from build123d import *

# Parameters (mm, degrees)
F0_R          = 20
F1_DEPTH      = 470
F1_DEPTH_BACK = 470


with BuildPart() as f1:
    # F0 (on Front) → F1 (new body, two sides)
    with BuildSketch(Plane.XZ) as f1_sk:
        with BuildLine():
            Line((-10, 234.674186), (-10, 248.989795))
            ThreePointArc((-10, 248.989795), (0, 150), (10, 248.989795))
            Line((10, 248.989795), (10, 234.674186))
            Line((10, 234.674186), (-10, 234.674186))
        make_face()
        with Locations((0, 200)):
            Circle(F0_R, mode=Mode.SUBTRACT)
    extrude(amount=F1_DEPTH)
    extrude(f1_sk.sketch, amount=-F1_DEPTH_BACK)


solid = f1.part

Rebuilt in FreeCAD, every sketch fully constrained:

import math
import FreeCAD as App
import Part
import Sketcher

V = App.Vector
Q = App.Units.Quantity

doc = App.newDocument("Part")
params = doc.addObject("Spreadsheet::Sheet", "Params")
for row, (alias, value) in enumerate([
    ("sketch1_diameter", "40 mm"),
    ("sketch1_radius", "50 mm"),
    ("sketch1_width", "20 mm"),
    ("pad1_length", "470 mm"),
    ("pad1_length2", "470 mm"),
], start=1):
    params.set(f"A{row}", alias)
    params.set(f"B{row}", "=" + value)
    params.setAlias(f"B{row}", alias)

body = doc.addObject("PartDesign::Body", "Body")

sketch1 = body.newObject("Sketcher::SketchObject", "Sketch")
sketch1.AttachmentSupport = (doc.getObject("XZ_Plane"), [""])
sketch1.MapMode = "FlatFace"
sketch1.addGeometry([
    Part.LineSegment(V(-10, 234.674186, 0), V(-10, 248.989795, 0)),
    Part.ArcOfCircle(Part.Circle(V(0, 200, 0), V(0, 0, 1), 50), math.radians(101.536959), math.radians(438.463041)),
    Part.LineSegment(V(10, 248.989795, 0), V(10, 234.674186, 0)),
    Part.LineSegment(V(10, 234.674186, 0), V(-10, 234.674186, 0)),
    Part.Circle(V(0, 200, 0), V(0, 0, 1), 20),
], False)
sketch1.addConstraint([
    Sketcher.Constraint("Coincident", 0, 2, 1, 1),
    Sketcher.Constraint("Coincident", 1, 2, 2, 1),
    Sketcher.Constraint("Coincident", 2, 2, 3, 1),
    Sketcher.Constraint("Coincident", 3, 2, 0, 1),
    Sketcher.Constraint("Vertical", 0),
    Sketcher.Constraint("Vertical", 2),
    Sketcher.Constraint("Horizontal", 3),
    Sketcher.Constraint("Coincident", 4, 3, 1, 3),
    Sketcher.Constraint("Symmetric", 0, 2, 1, 2, -2),
    Sketcher.Constraint("Diameter", 4, Q("40 mm")),
    Sketcher.Constraint("Radius", 1, Q("50 mm")),
    Sketcher.Constraint("DistanceX", 3, 2, 3, 1, Q("20 mm")),
    Sketcher.Constraint("DistanceY", -1, 1, 1, 3, Q("200 mm")),
    Sketcher.Constraint("DistanceY", 0, 1, 0, 2, Q("14.315609 mm")),
])
sketch1.setExpression("Constraints[9]", "Params.sketch1_diameter")
sketch1.setExpression("Constraints[10]", "Params.sketch1_radius")
sketch1.setExpression("Constraints[11]", "Params.sketch1_width")
pad1 = body.newObject("PartDesign::Pad", "Pad")
pad1.Profile = sketch1
pad1.Type = "TwoLengths"
pad1.setExpression("Length", "Params.pad1_length")
pad1.setExpression("Length2", "Params.pad1_length2")

doc.recompute()
